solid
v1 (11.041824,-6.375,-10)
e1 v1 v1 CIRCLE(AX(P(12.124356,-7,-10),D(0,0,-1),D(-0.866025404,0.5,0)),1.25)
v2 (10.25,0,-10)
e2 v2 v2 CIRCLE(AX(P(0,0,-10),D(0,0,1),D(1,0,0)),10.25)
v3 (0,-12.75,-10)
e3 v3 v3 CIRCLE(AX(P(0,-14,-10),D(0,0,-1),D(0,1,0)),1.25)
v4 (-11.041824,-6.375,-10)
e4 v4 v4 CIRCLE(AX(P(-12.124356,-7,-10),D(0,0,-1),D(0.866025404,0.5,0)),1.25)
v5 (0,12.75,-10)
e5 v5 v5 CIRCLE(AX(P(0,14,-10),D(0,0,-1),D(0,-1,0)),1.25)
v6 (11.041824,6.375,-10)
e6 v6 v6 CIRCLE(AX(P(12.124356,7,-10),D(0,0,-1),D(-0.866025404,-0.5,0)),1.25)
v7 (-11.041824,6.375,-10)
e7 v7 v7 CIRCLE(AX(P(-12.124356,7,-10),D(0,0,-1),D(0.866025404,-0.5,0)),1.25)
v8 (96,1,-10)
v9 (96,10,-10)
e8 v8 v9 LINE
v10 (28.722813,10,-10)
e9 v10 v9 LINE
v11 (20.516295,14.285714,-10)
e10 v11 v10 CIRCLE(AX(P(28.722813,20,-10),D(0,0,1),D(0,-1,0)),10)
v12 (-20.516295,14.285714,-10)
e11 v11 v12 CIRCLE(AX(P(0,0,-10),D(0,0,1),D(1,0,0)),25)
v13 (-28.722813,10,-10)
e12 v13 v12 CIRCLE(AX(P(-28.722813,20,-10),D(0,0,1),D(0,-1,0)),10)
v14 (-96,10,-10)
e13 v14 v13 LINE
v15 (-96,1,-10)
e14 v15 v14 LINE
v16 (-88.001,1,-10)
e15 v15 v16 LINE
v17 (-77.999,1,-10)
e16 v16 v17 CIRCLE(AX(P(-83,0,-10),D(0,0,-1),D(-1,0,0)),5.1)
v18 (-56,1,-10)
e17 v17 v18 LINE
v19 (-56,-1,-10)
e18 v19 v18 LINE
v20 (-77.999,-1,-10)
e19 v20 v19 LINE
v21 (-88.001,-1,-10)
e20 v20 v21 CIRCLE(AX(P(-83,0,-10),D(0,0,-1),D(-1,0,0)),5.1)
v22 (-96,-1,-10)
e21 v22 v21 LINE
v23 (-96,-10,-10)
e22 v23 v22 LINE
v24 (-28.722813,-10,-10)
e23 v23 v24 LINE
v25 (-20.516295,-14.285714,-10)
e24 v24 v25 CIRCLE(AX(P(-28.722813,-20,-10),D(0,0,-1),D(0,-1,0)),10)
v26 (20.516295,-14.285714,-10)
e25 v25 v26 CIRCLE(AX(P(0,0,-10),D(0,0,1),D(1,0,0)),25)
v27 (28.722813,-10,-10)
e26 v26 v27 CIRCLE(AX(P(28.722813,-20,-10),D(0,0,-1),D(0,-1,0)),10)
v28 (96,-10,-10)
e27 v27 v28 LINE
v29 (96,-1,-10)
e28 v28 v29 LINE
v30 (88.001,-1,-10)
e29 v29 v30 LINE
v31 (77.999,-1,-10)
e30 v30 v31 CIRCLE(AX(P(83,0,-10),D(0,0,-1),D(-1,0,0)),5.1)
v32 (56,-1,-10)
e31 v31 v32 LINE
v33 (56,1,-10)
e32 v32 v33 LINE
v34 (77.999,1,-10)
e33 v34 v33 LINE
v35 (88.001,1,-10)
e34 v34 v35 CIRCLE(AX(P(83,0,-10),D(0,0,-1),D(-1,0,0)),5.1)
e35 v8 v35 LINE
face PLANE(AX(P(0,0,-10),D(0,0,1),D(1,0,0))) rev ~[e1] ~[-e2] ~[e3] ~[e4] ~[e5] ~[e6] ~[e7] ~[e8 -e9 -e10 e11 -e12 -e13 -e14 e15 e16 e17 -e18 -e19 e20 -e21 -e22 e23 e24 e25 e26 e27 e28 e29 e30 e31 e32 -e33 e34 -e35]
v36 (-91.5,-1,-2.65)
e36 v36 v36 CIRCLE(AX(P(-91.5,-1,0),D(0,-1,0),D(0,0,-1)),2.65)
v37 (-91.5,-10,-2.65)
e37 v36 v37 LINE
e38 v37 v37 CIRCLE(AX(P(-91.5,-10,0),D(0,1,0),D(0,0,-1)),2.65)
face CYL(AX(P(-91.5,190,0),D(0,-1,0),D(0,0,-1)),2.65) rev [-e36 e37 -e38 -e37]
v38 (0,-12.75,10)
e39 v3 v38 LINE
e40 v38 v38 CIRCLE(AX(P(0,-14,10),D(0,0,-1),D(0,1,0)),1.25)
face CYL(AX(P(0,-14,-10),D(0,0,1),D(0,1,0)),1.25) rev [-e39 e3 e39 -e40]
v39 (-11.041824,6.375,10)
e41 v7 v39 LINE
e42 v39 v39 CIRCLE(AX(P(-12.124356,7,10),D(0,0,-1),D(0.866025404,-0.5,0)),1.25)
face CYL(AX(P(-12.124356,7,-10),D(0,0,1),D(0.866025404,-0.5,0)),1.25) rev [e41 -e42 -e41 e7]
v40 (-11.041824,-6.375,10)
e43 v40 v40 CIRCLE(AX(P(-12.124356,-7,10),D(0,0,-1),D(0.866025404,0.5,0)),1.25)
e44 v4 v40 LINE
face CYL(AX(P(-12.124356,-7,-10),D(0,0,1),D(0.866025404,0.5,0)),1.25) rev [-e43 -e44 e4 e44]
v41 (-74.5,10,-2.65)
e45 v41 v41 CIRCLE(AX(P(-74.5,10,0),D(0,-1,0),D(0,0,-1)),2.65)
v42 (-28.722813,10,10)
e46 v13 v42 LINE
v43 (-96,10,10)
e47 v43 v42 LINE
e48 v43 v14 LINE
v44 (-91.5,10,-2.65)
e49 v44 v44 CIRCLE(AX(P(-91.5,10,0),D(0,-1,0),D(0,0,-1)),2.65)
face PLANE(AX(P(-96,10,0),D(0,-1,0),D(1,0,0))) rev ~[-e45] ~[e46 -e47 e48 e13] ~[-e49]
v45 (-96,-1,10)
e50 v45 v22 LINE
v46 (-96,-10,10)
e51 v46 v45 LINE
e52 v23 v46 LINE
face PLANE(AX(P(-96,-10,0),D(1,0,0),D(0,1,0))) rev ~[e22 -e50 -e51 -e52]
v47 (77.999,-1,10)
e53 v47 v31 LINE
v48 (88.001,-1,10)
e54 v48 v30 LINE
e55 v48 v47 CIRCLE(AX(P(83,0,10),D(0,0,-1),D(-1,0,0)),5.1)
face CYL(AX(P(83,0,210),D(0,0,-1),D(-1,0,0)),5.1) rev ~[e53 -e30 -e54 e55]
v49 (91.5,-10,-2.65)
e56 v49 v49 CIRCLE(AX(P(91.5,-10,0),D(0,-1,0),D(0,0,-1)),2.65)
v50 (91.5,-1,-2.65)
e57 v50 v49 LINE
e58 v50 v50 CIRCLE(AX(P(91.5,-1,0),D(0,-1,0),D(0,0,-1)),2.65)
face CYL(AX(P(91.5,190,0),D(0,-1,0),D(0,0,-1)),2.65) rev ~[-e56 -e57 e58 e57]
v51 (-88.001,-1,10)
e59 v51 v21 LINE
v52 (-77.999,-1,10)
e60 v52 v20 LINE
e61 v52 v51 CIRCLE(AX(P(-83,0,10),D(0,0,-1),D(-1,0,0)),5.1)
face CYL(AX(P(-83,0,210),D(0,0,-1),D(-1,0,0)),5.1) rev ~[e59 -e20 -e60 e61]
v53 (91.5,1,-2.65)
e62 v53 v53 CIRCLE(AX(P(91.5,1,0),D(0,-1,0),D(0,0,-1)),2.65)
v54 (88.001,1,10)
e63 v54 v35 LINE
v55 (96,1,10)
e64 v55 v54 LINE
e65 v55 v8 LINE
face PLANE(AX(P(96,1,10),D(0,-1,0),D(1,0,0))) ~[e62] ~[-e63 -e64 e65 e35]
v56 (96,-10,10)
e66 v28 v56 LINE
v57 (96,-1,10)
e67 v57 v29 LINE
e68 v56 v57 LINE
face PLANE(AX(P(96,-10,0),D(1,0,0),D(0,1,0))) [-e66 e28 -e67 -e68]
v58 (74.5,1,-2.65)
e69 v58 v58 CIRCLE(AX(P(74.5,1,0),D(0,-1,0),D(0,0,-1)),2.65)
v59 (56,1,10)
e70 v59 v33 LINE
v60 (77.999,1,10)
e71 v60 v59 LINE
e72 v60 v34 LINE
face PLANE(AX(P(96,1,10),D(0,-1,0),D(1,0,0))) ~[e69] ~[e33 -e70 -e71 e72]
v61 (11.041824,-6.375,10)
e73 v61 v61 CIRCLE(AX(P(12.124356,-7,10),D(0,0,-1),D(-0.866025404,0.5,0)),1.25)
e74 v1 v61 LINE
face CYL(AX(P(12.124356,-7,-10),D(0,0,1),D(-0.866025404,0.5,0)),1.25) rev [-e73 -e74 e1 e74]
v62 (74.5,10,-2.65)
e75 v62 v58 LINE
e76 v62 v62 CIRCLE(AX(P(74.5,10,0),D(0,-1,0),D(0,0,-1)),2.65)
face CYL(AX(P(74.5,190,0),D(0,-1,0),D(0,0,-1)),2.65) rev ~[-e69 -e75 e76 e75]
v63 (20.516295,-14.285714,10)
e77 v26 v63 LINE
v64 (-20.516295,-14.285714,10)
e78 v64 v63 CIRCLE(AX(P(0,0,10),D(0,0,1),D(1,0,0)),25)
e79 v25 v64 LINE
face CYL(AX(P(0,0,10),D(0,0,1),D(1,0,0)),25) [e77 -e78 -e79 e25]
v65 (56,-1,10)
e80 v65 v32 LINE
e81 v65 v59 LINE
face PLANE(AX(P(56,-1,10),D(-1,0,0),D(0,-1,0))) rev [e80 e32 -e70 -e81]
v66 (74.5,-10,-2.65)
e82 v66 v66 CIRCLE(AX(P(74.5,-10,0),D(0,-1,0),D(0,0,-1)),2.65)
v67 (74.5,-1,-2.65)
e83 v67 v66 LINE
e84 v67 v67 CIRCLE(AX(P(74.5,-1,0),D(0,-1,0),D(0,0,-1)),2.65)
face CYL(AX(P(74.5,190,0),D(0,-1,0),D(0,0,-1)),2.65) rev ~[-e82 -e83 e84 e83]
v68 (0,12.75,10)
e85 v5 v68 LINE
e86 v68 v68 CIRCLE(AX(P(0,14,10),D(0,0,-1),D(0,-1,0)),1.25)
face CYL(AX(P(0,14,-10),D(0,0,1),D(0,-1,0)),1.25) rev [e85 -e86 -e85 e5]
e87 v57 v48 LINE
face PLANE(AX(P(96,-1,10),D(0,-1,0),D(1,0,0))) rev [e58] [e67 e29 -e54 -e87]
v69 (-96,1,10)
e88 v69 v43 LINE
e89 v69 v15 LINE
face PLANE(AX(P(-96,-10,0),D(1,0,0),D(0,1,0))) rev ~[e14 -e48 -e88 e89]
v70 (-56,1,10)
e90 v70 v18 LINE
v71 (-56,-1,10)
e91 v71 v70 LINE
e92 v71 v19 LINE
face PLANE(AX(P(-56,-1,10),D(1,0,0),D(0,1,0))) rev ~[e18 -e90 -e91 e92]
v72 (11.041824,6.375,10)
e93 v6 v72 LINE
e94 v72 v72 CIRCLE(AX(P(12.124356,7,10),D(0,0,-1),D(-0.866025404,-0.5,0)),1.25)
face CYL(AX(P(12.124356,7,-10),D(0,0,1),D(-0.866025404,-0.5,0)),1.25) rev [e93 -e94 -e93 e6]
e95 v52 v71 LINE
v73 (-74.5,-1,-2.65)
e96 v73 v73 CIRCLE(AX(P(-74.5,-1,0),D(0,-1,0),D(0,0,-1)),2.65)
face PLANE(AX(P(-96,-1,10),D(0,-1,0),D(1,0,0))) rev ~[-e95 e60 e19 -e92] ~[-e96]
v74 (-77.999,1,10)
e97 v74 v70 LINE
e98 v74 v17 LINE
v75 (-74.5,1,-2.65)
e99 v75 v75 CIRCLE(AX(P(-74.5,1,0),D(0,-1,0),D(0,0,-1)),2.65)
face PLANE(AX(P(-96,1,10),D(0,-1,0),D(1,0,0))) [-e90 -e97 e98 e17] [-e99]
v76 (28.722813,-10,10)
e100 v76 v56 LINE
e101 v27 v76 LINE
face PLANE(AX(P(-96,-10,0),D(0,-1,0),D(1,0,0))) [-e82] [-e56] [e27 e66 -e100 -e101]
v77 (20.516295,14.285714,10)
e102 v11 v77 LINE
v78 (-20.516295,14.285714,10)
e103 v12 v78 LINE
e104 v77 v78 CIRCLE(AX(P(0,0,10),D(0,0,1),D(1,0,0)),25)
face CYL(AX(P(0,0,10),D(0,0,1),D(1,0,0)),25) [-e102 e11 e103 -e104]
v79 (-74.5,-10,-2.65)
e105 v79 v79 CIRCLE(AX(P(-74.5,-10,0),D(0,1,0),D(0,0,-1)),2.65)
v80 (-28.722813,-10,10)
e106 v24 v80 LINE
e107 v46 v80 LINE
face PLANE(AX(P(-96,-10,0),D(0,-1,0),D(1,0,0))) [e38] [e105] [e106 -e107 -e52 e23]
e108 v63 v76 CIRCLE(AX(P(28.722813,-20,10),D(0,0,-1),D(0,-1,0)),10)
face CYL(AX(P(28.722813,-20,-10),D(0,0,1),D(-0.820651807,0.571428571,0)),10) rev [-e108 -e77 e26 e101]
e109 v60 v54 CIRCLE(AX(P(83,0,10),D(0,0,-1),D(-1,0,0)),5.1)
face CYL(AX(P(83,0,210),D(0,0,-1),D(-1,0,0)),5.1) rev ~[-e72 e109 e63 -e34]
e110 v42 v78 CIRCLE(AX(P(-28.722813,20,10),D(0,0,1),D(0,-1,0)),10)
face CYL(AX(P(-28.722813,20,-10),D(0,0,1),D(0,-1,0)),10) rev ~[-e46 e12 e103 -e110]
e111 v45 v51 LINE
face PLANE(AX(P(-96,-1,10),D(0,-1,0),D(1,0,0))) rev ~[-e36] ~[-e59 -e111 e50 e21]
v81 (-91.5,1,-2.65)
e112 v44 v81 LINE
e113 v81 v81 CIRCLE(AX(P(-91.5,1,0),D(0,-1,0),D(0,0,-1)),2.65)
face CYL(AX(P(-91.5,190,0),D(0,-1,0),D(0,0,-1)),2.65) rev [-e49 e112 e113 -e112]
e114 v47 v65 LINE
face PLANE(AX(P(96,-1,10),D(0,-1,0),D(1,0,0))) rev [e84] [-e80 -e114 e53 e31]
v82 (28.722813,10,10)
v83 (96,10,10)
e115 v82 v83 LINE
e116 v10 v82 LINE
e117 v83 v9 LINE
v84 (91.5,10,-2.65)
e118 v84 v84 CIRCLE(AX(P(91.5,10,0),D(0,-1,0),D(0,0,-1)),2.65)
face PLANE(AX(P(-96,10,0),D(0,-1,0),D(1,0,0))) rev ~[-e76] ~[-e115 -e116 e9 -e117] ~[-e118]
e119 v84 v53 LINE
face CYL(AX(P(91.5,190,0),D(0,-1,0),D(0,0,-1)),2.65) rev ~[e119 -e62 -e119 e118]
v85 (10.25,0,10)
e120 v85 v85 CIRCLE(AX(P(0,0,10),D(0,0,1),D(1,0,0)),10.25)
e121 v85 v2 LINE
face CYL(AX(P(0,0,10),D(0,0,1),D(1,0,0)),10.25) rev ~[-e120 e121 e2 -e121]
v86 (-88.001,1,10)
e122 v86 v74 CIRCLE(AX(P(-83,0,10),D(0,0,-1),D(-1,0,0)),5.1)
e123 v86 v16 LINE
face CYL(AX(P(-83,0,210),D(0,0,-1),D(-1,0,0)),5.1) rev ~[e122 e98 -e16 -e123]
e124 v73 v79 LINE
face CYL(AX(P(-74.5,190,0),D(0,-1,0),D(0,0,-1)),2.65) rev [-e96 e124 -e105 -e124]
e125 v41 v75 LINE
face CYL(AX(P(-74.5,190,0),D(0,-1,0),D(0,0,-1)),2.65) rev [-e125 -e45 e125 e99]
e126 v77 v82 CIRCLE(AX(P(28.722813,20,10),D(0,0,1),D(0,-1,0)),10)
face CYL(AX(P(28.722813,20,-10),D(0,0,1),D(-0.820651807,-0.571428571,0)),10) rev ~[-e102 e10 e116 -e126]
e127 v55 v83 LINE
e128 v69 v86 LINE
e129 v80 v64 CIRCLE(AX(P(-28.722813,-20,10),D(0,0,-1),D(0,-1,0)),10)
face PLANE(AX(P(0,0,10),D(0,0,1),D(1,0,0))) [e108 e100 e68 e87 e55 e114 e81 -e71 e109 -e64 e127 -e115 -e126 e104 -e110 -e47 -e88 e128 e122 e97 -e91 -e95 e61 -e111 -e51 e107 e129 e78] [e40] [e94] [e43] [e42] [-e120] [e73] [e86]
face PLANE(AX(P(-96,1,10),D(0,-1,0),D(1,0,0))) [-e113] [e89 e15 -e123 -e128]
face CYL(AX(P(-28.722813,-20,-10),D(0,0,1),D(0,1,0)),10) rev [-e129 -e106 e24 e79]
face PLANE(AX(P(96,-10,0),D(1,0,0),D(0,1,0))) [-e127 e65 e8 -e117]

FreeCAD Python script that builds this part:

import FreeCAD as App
import Part
import Sketcher

V = App.Vector
Q = App.Units.Quantity


def edges_at(feature, points):
    """Names of the edges that pass closest to the given points."""
    edges = feature.Shape.Edges
    near = lambda p: min(range(len(edges)), key=lambda i: edges[i].distToShape(Part.Vertex(*p))[0])
    return sorted({f"Edge{near(p) + 1}" for p in points})


def add_polygon(sketch, points):
    """Adds a closed chain of lines whose ends are joined by coincident constraints."""
    first, n = sketch.GeometryCount, len(points)
    for a, b in zip(points, points[1:] + points[:1]):
        sketch.addGeometry(Part.LineSegment(App.Vector(*a, 0), App.Vector(*b, 0)), False)
    for i in range(n):
        sketch.addConstraint(Sketcher.Constraint("Coincident", first + i, 2, first + (i + 1) % n, 1))

doc = App.newDocument("Part")
body = doc.addObject("PartDesign::Body", "Body")

# Sketch on XY plane
sketch1 = body.newObject("Sketcher::SketchObject", "Sketch")
sketch1.AttachmentSupport = (doc.getObject("XY_Plane"), [""])
sketch1.MapMode = "FlatFace"
add_polygon(sketch1, [(-96, 10), (-96, -10), (96, -10), (96, 10)])  # lines 0-3
sketch1.addConstraint([
    Sketcher.Constraint("Vertical", 0),
    Sketcher.Constraint("Horizontal", 1),
    Sketcher.Constraint("Vertical", 2),
    Sketcher.Constraint("Horizontal", 3),
    Sketcher.Constraint("Symmetric", 0, 2, 2, 2, -1, 1),
    Sketcher.Constraint("DistanceX", 1, 1, 1, 2, Q("192 mm")),
    Sketcher.Constraint("DistanceY", 0, 2, 0, 1, Q("20 mm")),
])
pad1 = body.newObject("PartDesign::Pad", "Pad")
pad1.Profile = sketch1
pad1.Length = 20
pad1.Midplane = True

# Sketch on XY plane
sketch2 = body.newObject("Sketcher::SketchObject", "Sketch001")
sketch2.AttachmentSupport = (doc.getObject("XY_Plane"), [""])
sketch2.MapMode = "FlatFace"
sketch2.AttachmentOffset = App.Placement(V(0, 0, 10), App.Rotation())
sketch2.addGeometry([
    Part.Circle(V(-83, 0, 0), V(0, 0, 1), 5),
    Part.Circle(V(83, 0, 0), V(0, 0, 1), 5),
], False)
sketch2.addConstraint([
    Sketcher.Constraint("Equal", 0, 1),
    Sketcher.Constraint("Symmetric", 0, 3, 1, 3, -1, 1),
    Sketcher.Constraint("PointOnObject", 0, 3, -1),
    Sketcher.Constraint("Diameter", 0, Q("10.2 mm")),
    Sketcher.Constraint("DistanceX", 0, 3, -1, 1, Q("83 mm")),
])
doc.recompute()
hole = body.newObject("PartDesign::Hole", "Hole")
hole.Profile = sketch2
hole.ThreadType = "None"
hole.Diameter = 10.2
hole.DepthType = "Dimension"
hole.Depth = 200
hole.DrillPoint = "Angled"
hole.DrillPointAngle = 118

# Sketch on XY plane
sketch3 = body.newObject("Sketcher::SketchObject", "Sketch002")
sketch3.AttachmentSupport = (doc.getObject("XY_Plane"), [""])
sketch3.MapMode = "FlatFace"
sketch3.AttachmentOffset = App.Placement(V(0, 0, 10), App.Rotation())
add_polygon(sketch3, [(-96, 1), (-96, -1), (-56, -1), (-56, 1)])  # lines 0-3
sketch3.addConstraint([
    Sketcher.Constraint("Vertical", 0),
    Sketcher.Constraint("Horizontal", 1),
    Sketcher.Constraint("Vertical", 2),
    Sketcher.Constraint("Horizontal", 3),
    Sketcher.Constraint("DistanceX", 1, 1, 1, 2, Q("40 mm")),
    Sketcher.Constraint("DistanceY", 0, 2, 0, 1, Q("2 mm")),
    Sketcher.Constraint("DistanceX", 0, 2, -1, 1, Q("96 mm")),
    Sketcher.Constraint("DistanceY", 0, 2, -1, 1, Q("1 mm")),
])
pocket1 = body.newObject("PartDesign::Pocket", "Pocket")
pocket1.Profile = sketch3
pocket1.Length = 20

# Sketch on YZ plane
sketch4 = body.newObject("Sketcher::SketchObject", "Sketch003")
sketch4.AttachmentSupport = (doc.getObject("YZ_Plane"), [""])
sketch4.MapMode = "FlatFace"
sketch4.AttachmentOffset = App.Placement(V(0, 0, -91.5), App.Rotation())
add_polygon(sketch4, [(191.6, 0), (-10, 0), (-10, -2.6), (190, -2.6)])  # lines 0-3
sketch4.addConstraint([
    Sketcher.Constraint("Horizontal", 0),
    Sketcher.Constraint("Vertical", 1),
    Sketcher.Constraint("Horizontal", 2),
    Sketcher.Constraint("PointOnObject", 0, 2, -1),
    Sketcher.Constraint("DistanceX", 2, 1, 2, 2, Q("200 mm")),
    Sketcher.Constraint("Angle", 3, Q("59 deg")),
    Sketcher.Constraint("DistanceX", 0, 2, -1, 1, Q("10 mm")),
    Sketcher.Constraint("DistanceY", 1, 2, 1, 1, Q("2.65 mm")),
])
groove = body.newObject("PartDesign::Groove", "Groove")
groove.Profile = sketch4
groove.ReferenceAxis = (sketch4, ["H_Axis"])
groove.Angle = 360
doc.recompute()

linearpattern = body.newObject("PartDesign::LinearPattern", "LinearPattern")
linearpattern.Originals = [groove]
linearpattern.Direction = (doc.getObject("X_Axis"), [""])
linearpattern.Mode = "offset"
linearpattern.Offset = 17
linearpattern.Occurrences = 2
body.Tip = linearpattern
doc.recompute()

mirrored = body.newObject("PartDesign::Mirrored", "Mirrored")
mirrored.Originals = [pocket1, groove]
mirrored.MirrorPlane = (doc.getObject("YZ_Plane"), [""])
body.Tip = mirrored

# Sketch on YZ plane
sketch5 = body.newObject("Sketcher::SketchObject", "Sketch004")
sketch5.AttachmentSupport = (doc.getObject("YZ_Plane"), [""])
sketch5.MapMode = "FlatFace"
sketch5.AttachmentOffset = App.Placement(V(0, 0, 74.5), App.Rotation())
add_polygon(sketch5, [(-10, 0), (191.6, 0), (190, -2.6), (-10, -2.6)])  # lines 0-3
sketch5.addConstraint([
    Sketcher.Constraint("Horizontal", 0),
    Sketcher.Constraint("Horizontal", 2),
    Sketcher.Constraint("Vertical", 3),
    Sketcher.Constraint("PointOnObject", 0, 2, -1),
    Sketcher.Constraint("DistanceX", 2, 2, 2, 1, Q("200 mm")),
    Sketcher.Constraint("Angle", 1, Q("-121 deg")),
    Sketcher.Constraint("DistanceX", -1, 1, 1, 2, Q("190 mm")),
    Sketcher.Constraint("DistanceY", 3, 1, 3, 2, Q("2.65 mm")),
])
groove2 = body.newObject("PartDesign::Groove", "Groove001")
groove2.Profile = sketch5
groove2.ReferenceAxis = (sketch5, ["H_Axis"])
groove2.Angle = 360

# Sketch on XY plane
sketch6 = body.newObject("Sketcher::SketchObject", "Sketch005")
sketch6.AttachmentSupport = (doc.getObject("XY_Plane"), [""])
sketch6.MapMode = "FlatFace"
sketch6.AttachmentOffset = App.Placement(V(0, 0, 10), App.Rotation())
sketch6.addGeometry(Part.Circle(V(0, 0, 0), V(0, 0, 1), 25), False)
sketch6.addConstraint([
    Sketcher.Constraint("Coincident", 0, 3, -1, 1),
    Sketcher.Constraint("Diameter", 0, Q("50 mm")),
])
pad2 = body.newObject("PartDesign::Pad", "Pad001")
pad2.Profile = sketch6
pad2.Length = 20
pad2.Reversed = True

# Sketch on XY plane
sketch7 = body.newObject("Sketcher::SketchObject", "Sketch006")
sketch7.AttachmentSupport = (doc.getObject("XY_Plane"), [""])
sketch7.MapMode = "FlatFace"
sketch7.AttachmentOffset = App.Placement(V(0, 0, 10), App.Rotation())
sketch7.addGeometry(Part.Circle(V(0, 0, 0), V(0, 0, 1), 10), False)
sketch7.addConstraint([
    Sketcher.Constraint("Coincident", 0, 3, -1, 1),
    Sketcher.Constraint("Diameter", 0, Q("20.5 mm")),
])
pocket2 = body.newObject("PartDesign::Pocket", "Pocket001")
pocket2.Profile = sketch7
pocket2.Length = 30
doc.recompute()

fillet = body.newObject("PartDesign::Fillet", "Fillet")
fillet.Base = (pocket2, edges_at(pocket2, [
    (-22.913, 10, 0),
    (22.913, 10, 0),
    (-22.913, -10, 0),
    (22.913, -10, 0),
]))
fillet.Radius = 10

# Sketch on YZ plane
sketch8 = body.newObject("Sketcher::SketchObject", "Sketch007")
sketch8.AttachmentSupport = (doc.getObject("YZ_Plane"), [""])
sketch8.MapMode = "FlatFace"
add_polygon(sketch8, [(14, -10.8), (14, 10), (12.8, 10), (12.8, -10)])  # lines 0-3
sketch8.addGeometry(Part.LineSegment(V(14, 10, 0), V(14, -10.8, 0)), True)  # axis
sketch8.addConstraint([
    Sketcher.Constraint("Vertical", 0),
    Sketcher.Constraint("Horizontal", 1),
    Sketcher.Constraint("Vertical", 2),
    Sketcher.Constraint("Vertical", 4),
    Sketcher.Constraint("Coincident", 4, 1, 0, 2),
    Sketcher.Constraint("Equal", 0, 4),
    Sketcher.Constraint("DistanceY", 2, 2, 2, 1, Q("20 mm")),
    Sketcher.Constraint("Angle", 3, Q("-31 deg")),
    Sketcher.Constraint("DistanceX", -1, 1, 0, 2, Q("14 mm")),
    Sketcher.Constraint("DistanceY", -1, 1, 0, 2, Q("10 mm")),
    Sketcher.Constraint("DistanceX", 1, 2, 1, 1, Q("1.25 mm")),
])
groove3 = body.newObject("PartDesign::Groove", "Groove002")
groove3.Profile = sketch8
groove3.ReferenceAxis = (sketch8, ["Axis0"])
groove3.Angle = 360
doc.recompute()

polarpattern = body.newObject("PartDesign::PolarPattern", "PolarPattern")
polarpattern.Originals = [groove3]
polarpattern.Axis = (doc.getObject("Z_Axis"), [""])
polarpattern.Angle = 360
polarpattern.Occurrences = 6
body.Tip = polarpattern

doc.recompute()
